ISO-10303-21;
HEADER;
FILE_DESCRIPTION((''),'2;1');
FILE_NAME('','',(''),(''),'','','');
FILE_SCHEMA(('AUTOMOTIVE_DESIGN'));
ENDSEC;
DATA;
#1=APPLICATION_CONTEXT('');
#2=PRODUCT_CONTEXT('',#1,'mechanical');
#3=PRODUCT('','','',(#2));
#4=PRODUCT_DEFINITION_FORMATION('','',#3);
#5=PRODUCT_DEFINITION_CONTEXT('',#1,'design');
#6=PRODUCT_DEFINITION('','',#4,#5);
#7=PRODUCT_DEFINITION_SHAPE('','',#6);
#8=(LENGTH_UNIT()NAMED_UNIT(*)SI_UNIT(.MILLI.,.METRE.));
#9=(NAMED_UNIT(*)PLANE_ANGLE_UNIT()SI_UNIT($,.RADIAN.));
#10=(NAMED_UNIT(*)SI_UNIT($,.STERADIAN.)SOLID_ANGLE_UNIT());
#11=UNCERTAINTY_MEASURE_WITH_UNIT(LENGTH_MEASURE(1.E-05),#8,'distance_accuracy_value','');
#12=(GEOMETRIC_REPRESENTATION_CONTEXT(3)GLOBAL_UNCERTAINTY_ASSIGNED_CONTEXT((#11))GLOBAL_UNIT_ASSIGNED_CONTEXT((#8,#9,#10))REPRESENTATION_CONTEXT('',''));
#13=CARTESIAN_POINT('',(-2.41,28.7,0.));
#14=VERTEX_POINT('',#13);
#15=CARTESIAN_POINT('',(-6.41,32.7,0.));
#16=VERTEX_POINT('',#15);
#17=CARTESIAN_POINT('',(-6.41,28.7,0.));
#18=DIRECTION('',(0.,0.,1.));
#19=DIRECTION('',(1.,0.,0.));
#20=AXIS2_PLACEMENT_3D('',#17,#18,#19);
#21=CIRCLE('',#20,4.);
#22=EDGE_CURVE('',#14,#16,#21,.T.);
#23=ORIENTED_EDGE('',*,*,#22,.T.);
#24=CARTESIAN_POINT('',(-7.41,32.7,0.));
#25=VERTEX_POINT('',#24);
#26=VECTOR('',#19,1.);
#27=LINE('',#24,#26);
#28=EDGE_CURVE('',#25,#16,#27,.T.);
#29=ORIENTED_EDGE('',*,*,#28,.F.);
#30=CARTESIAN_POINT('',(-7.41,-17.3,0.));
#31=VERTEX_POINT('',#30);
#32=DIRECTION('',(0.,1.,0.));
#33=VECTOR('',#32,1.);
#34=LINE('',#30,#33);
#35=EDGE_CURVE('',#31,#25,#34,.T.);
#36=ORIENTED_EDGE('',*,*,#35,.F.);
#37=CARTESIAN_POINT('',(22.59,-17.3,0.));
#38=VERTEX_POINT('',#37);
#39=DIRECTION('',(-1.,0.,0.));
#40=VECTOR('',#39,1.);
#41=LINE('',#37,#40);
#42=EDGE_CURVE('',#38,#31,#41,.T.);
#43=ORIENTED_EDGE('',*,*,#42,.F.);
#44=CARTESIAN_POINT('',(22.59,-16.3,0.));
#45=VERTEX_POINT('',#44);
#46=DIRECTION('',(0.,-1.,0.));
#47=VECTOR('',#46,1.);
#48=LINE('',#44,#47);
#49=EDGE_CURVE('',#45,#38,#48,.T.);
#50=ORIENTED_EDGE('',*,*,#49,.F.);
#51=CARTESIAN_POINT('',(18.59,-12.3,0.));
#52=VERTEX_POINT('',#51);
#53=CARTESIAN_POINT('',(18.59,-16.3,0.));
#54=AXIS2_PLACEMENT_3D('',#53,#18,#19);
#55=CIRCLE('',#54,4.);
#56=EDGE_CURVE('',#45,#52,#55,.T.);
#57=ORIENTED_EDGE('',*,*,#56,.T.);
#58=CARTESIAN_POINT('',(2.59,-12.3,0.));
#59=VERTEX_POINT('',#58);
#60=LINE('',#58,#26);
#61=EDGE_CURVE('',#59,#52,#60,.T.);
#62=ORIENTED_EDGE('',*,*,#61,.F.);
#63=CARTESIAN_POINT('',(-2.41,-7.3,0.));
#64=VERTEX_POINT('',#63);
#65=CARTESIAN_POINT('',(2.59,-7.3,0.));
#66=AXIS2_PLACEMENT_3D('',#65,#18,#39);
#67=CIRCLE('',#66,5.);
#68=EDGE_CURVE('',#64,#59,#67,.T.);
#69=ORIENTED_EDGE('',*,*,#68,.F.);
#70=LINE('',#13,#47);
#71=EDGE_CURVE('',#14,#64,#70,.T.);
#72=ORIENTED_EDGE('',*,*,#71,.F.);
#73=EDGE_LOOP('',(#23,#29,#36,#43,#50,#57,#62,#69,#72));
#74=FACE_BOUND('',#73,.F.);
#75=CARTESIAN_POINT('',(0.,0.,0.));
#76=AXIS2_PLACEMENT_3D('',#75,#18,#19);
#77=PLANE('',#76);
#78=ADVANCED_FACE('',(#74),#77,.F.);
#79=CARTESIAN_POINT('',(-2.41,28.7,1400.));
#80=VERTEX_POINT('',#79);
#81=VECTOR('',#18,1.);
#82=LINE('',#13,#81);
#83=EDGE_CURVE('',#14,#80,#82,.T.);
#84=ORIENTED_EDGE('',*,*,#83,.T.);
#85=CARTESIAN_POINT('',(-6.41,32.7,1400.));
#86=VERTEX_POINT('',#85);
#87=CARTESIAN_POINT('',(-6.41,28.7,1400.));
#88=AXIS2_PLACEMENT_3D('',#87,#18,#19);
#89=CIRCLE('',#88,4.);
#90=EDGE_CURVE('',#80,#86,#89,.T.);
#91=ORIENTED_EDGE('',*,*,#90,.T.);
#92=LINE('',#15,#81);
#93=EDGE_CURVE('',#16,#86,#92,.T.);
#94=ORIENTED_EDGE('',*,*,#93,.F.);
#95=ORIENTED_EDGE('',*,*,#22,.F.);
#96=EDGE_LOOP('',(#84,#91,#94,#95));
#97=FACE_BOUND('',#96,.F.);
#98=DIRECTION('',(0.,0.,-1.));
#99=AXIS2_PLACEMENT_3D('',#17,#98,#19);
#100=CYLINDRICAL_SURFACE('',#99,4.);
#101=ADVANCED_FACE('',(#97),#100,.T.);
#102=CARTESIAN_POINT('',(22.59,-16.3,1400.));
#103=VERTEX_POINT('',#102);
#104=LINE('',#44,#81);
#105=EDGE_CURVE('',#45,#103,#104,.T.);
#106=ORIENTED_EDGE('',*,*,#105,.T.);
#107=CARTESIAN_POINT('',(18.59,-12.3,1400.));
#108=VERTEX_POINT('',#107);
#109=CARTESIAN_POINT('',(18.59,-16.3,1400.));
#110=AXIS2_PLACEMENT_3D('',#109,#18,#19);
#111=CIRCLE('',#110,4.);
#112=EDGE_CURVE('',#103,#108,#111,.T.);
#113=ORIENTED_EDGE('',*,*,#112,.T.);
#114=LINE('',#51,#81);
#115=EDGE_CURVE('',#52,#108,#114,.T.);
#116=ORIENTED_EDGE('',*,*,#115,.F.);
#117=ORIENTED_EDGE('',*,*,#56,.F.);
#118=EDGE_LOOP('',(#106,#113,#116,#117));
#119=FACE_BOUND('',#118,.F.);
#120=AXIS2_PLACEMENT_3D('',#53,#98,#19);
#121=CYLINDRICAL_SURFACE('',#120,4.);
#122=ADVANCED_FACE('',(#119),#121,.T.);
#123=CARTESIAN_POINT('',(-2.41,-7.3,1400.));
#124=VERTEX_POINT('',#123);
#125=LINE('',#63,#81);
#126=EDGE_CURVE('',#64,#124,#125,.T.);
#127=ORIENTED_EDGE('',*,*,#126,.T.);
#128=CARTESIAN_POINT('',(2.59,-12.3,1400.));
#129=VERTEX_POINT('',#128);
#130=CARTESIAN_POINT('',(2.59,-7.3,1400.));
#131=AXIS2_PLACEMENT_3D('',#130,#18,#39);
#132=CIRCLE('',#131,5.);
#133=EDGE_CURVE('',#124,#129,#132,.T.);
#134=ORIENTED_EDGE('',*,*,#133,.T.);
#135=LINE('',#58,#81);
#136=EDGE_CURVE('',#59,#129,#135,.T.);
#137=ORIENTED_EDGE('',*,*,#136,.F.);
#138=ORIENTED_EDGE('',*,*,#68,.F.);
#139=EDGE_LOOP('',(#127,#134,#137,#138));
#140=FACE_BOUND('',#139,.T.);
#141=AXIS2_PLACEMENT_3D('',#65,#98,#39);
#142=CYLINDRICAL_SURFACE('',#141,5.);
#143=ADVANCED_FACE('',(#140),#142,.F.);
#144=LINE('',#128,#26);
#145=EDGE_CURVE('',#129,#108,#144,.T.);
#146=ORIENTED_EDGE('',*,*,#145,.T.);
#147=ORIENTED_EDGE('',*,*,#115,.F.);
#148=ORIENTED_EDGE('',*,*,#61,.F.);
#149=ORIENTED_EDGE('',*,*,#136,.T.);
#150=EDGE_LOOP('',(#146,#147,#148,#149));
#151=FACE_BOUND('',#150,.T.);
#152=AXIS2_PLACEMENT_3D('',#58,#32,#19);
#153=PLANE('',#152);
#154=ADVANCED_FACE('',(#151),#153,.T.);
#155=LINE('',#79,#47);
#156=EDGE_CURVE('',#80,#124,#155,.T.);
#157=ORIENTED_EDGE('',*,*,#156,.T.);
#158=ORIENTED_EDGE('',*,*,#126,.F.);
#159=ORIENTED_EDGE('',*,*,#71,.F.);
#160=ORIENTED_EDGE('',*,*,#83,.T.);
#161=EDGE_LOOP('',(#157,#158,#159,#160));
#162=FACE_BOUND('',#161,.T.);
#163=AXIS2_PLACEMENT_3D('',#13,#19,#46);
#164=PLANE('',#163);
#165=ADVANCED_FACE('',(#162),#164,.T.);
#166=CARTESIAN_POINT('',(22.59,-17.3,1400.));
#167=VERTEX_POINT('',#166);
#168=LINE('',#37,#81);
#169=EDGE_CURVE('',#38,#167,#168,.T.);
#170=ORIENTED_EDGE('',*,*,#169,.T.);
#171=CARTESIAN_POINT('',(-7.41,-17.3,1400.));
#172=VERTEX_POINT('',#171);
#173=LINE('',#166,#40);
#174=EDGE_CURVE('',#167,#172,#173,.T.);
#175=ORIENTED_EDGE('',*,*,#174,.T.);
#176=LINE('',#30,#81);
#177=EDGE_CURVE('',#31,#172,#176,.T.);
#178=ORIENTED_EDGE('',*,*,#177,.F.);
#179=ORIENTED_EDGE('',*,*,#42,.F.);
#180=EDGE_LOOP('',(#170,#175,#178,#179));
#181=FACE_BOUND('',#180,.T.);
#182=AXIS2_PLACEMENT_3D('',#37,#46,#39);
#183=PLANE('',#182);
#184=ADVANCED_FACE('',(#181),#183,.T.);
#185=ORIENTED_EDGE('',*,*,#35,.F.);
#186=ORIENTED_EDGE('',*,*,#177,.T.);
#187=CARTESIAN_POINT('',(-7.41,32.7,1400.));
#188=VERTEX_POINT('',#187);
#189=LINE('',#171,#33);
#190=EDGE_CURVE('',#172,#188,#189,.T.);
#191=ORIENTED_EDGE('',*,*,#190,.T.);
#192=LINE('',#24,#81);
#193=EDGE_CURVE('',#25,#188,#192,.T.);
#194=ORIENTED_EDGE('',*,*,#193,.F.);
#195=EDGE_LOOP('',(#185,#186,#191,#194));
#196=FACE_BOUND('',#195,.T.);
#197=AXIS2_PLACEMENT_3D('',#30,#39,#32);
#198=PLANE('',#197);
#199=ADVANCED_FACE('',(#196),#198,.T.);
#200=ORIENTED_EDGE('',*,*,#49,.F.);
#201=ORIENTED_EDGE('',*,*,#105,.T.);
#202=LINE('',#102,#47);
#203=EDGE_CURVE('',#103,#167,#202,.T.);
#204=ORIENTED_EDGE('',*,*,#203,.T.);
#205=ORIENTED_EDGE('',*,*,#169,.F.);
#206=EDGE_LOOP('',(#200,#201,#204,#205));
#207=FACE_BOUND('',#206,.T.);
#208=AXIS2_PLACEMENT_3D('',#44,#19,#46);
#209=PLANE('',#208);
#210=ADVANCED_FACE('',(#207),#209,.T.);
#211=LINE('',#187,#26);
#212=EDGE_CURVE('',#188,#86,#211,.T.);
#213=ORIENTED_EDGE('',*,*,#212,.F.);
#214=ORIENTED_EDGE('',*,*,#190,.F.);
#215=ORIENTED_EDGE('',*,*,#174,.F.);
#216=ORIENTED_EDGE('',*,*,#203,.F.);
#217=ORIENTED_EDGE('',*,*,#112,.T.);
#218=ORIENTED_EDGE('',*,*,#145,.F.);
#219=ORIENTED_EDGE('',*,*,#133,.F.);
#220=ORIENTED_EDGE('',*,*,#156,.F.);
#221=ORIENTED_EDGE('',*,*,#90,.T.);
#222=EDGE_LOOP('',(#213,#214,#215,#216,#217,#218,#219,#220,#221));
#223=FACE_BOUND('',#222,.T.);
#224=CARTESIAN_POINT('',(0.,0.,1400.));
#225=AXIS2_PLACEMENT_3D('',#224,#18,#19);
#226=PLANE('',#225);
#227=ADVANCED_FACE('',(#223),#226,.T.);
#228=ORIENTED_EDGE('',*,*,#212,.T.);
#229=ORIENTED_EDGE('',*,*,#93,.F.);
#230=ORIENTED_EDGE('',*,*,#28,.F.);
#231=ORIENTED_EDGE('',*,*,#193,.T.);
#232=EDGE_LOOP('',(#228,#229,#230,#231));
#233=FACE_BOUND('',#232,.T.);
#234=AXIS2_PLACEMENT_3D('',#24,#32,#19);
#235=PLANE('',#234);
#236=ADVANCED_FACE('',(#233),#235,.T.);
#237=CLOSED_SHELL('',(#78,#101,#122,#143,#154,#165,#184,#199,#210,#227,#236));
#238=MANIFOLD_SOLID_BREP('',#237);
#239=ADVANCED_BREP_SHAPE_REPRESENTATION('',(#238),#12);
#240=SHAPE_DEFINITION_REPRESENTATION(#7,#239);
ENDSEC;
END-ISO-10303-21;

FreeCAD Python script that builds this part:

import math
import FreeCAD as App
import Part
import Sketcher
from FreeCAD import Vector

doc = App.newDocument("Part")
params = doc.addObject("Spreadsheet::Sheet", "Params")
for row, (alias, value) in enumerate([
    ("sketch1_radius", "4 mm"),
    ("sketch1_radius2", "5 mm"),
    ("sketch1_width", "30 mm"),
    ("sketch1_height", "50 mm"),
    ("pad1_length", "1400 mm"),
], start=1):
    params.set(f"A{row}", alias)
    params.set(f"B{row}", "=" + value)
    params.setAlias(f"B{row}", alias)

body = doc.addObject("PartDesign::Body", "Body")

# Sketch on XY plane
sketch1 = doc.addObject("Sketcher::SketchObject", "Sketch")
body.addObject(sketch1)
sketch1.AttachmentSupport = (doc.XY_Plane, [""])
sketch1.MapMode = "FlatFace"
sketch1.addGeometry([
    Part.LineSegment(Vector(-2.41, -7.3, 0), Vector(-2.41, 28.7, 0)),  # 0
    Part.ArcOfCircle(Part.Circle(Vector(-6.41, 28.7, 0), Vector(0, 0, 1), 4), math.radians(0), math.radians(90)),  # 1
    Part.LineSegment(Vector(-6.41, 32.7, 0), Vector(-7.41, 32.7, 0)),  # 2
    Part.LineSegment(Vector(-7.41, 32.7, 0), Vector(-7.41, -17.3, 0)),  # 3
    Part.LineSegment(Vector(-7.41, -17.3, 0), Vector(22.59, -17.3, 0)),  # 4
    Part.LineSegment(Vector(22.59, -17.3, 0), Vector(22.59, -16.3, 0)),  # 5
    Part.ArcOfCircle(Part.Circle(Vector(18.59, -16.3, 0), Vector(0, 0, 1), 4), math.radians(0), math.radians(90)),  # 6
    Part.LineSegment(Vector(18.59, -12.3, 0), Vector(2.59, -12.3, 0)),  # 7
    Part.ArcOfCircle(Part.Circle(Vector(2.59, -7.3, 0), Vector(0, 0, 1), 5), math.radians(180), math.radians(270)),  # 8
], False)
sketch1.addConstraint([
    Sketcher.Constraint("Tangent", 0, 2, 1, 1),
    Sketcher.Constraint("Tangent", 1, 2, 2, 1),
    Sketcher.Constraint("Coincident", 2, 2, 3, 1),
    Sketcher.Constraint("Coincident", 3, 2, 4, 1),
    Sketcher.Constraint("Coincident", 4, 2, 5, 1),
    Sketcher.Constraint("Tangent", 5, 2, 6, 1),
    Sketcher.Constraint("Tangent", 6, 2, 7, 1),
    Sketcher.Constraint("Tangent", 7, 2, 8, 2),
    Sketcher.Constraint("Tangent", 8, 1, 0, 1),
    Sketcher.Constraint("Vertical", 0),
    Sketcher.Constraint("Horizontal", 2),
    Sketcher.Constraint("Vertical", 3),
    Sketcher.Constraint("Horizontal", 4),
    Sketcher.Constraint("Vertical", 5),
    Sketcher.Constraint("Horizontal", 7),
    Sketcher.Constraint("Equal", 1, 6),
    Sketcher.Constraint("Equal", 2, 5),
    Sketcher.Constraint("Radius", 1, 4.0),
    Sketcher.Constraint("Radius", 8, 5.0),
    Sketcher.Constraint("DistanceX", 4, 1, 4, 2, 30.0),
    Sketcher.Constraint("DistanceY", 3, 2, 3, 1, 50.0),
    Sketcher.Constraint("DistanceX", 2, 2, 0, 2, 5.0),
    Sketcher.Constraint("DistanceY", 3, 2, -1, 1, 17.3),
    Sketcher.Constraint("DistanceX", 2, 2, -1, 1, 7.41),
])
sketch1.setExpression("Constraints[17]", "Params.sketch1_radius")
sketch1.setExpression("Constraints[18]", "Params.sketch1_radius2")
sketch1.setExpression("Constraints[19]", "Params.sketch1_width")
sketch1.setExpression("Constraints[20]", "Params.sketch1_height")
pad1 = doc.addObject("PartDesign::Pad", "Pad")
body.addObject(pad1)
pad1.Profile = sketch1
pad1.setExpression("Length", "Params.pad1_length")

doc.recompute()
